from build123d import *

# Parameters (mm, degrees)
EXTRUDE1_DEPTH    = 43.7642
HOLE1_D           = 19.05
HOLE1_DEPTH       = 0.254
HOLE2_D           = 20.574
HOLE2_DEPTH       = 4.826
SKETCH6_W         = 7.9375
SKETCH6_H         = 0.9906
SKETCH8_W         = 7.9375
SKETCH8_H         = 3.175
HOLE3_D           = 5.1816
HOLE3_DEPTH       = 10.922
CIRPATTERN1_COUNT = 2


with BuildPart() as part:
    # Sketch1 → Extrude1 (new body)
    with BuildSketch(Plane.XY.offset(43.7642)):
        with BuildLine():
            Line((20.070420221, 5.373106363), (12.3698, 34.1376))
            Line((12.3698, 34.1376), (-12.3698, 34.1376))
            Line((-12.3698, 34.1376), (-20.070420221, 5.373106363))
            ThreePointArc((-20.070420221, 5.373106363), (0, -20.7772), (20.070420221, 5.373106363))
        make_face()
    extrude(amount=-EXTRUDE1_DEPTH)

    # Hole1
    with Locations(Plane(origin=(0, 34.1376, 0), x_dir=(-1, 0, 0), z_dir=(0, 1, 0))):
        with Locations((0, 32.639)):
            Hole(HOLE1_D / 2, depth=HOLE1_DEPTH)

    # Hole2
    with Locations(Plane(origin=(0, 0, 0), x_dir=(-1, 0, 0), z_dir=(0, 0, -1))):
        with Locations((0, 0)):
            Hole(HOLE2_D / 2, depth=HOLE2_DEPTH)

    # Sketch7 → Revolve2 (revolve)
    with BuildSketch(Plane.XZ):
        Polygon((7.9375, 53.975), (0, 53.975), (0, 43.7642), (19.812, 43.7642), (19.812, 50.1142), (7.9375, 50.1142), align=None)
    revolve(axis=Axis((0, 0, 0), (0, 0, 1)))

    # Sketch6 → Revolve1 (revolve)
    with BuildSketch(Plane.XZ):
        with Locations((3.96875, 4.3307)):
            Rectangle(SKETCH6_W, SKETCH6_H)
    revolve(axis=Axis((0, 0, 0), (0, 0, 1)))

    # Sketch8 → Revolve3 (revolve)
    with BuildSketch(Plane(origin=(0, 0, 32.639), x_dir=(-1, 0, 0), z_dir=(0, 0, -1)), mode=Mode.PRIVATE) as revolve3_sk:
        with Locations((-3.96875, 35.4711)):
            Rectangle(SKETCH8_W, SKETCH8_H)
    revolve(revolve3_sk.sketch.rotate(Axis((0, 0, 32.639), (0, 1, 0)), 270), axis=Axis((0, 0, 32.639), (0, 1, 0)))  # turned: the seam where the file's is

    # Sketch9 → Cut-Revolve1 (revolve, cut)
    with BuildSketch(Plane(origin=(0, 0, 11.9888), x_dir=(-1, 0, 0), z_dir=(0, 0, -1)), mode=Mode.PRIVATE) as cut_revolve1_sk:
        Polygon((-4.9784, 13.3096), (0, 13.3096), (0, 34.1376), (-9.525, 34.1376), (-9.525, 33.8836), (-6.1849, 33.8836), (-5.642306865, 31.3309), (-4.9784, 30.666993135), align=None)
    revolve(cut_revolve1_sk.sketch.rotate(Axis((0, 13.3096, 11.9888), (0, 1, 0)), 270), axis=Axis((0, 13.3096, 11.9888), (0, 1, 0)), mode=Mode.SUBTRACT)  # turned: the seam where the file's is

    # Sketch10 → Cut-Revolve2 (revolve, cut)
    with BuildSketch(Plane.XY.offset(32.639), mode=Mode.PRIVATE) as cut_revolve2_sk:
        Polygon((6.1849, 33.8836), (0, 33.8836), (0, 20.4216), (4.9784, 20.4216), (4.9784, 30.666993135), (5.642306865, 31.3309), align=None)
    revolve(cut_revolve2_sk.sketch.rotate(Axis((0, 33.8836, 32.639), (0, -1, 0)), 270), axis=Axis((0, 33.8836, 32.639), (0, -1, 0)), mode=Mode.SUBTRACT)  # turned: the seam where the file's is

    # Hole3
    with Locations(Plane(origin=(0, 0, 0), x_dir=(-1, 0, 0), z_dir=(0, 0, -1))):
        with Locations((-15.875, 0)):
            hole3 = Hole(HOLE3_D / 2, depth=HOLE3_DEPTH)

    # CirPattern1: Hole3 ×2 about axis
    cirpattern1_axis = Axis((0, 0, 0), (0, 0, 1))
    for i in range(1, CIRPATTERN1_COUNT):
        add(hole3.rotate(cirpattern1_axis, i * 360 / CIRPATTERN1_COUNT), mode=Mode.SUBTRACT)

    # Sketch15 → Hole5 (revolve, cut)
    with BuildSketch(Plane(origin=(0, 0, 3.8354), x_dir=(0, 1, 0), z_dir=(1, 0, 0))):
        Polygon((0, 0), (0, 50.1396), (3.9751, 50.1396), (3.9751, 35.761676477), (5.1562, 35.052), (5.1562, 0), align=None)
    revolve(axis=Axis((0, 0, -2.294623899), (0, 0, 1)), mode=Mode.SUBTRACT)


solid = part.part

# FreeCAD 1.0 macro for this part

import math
import FreeCAD as App
import Part
import Sketcher
Q = App.Units.Quantity

doc = App.newDocument("Part")
body = doc.addObject("PartDesign::Body", "Body")

# Sketch on XY plane
sketch1 = body.newObject("Sketcher::SketchObject", "Sketch")
sketch1.AttachmentSupport = (doc.getObject("XY_Plane"), [""])
sketch1.MapMode = "FlatFace"
sketch1.AttachmentOffset = App.Placement(App.Vector(0, 0, 1.723 * 25.4), App.Rotation())
sketch1.addGeometry([
    Part.LineSegment(App.Vector(20, 5, 0), App.Vector(12, 34, 0)),
    Part.LineSegment(App.Vector(12, 34, 0), App.Vector(-12, 34, 0)),
    Part.LineSegment(App.Vector(-12, 34, 0), App.Vector(-20, 5, 0)),
    Part.ArcOfCircle(Part.Circle(App.Vector(0, 0, 0), App.Vector(0, 0, 1), 21), math.radians(165), math.radians(375)),
], False)
sketch1.addConstraint([
    Sketcher.Constraint("Coincident", 0, 2, 1, 1),
    Sketcher.Constraint("Coincident", 1, 2, 2, 1),
    Sketcher.Constraint("Tangent", 2, 2, 3, 1),
    Sketcher.Constraint("Tangent", 3, 2, 0, 1),
    Sketcher.Constraint("Horizontal", 1),
    Sketcher.Constraint("Coincident", 3, 3, -1, 1),
    Sketcher.Constraint("Horizontal", 2, 2, 3, 2),
    Sketcher.Constraint("Radius", 3, Q("0.818 in")),
    Sketcher.Constraint("DistanceX", 1, 2, 1, 1, Q("0.974 in")),
    Sketcher.Constraint("DistanceY", -1, 1, 0, 2, Q("1.344 in")),
])
pad1 = body.newObject("PartDesign::Pad", "Pad")
pad1.Profile = sketch1
pad1.Length = Q("1.723 in")
pad1.Reversed = True

# Sketch on XZ plane
sketch2 = body.newObject("Sketcher::SketchObject", "Sketch001")
sketch2.AttachmentSupport = (doc.getObject("XZ_Plane"), [""])
sketch2.MapMode = "FlatFace"
sketch2.AttachmentOffset = App.Placement(App.Vector(0, 0, -1.344 * 25.4), App.Rotation())
sketch2.addGeometry(Part.Circle(App.Vector(0, 33, 0), App.Vector(0, 0, 1), 10), False)
sketch2.addConstraint([
    Sketcher.Constraint("PointOnObject", 0, 3, -2),
    Sketcher.Constraint("Diameter", 0, Q("0.75 in")),
    Sketcher.Constraint("DistanceY", -1, 1, 0, 3, Q("1.285 in")),
])
doc.recompute()
hole = body.newObject("PartDesign::Hole", "Hole")
hole.Profile = sketch2
hole.ThreadType = "None"
hole.Diameter = Q("0.75 in")
hole.DepthType = "Dimension"
hole.Depth = Q("0.01 in")
hole.DrillPoint = "Flat"
hole.Reversed = True

# Sketch on XY plane
sketch3 = body.newObject("Sketcher::SketchObject", "Sketch002")
sketch3.AttachmentSupport = (doc.getObject("XY_Plane"), [""])
sketch3.MapMode = "FlatFace"
sketch3.addGeometry(Part.Circle(App.Vector(0, 0, 0), App.Vector(0, 0, 1), 10), False)
sketch3.addConstraint([
    Sketcher.Constraint("Coincident", 0, 3, -1, 1),
    Sketcher.Constraint("Diameter", 0, Q("0.81 in")),
])
doc.recompute()
hole2 = body.newObject("PartDesign::Hole", "Hole001")
hole2.Profile = sketch3
hole2.ThreadType = "None"
hole2.Diameter = Q("0.81 in")
hole2.DepthType = "Dimension"
hole2.Depth = Q("0.19 in")
hole2.DrillPoint = "Flat"
hole2.Reversed = True

# Sketch on XZ plane
sketch4 = body.newObject("Sketcher::SketchObject", "Sketch003")
sketch4.AttachmentSupport = (doc.getObject("XZ_Plane"), [""])
sketch4.MapMode = "FlatFace"
sketch4.addGeometry([
    Part.LineSegment(App.Vector(7.9, 54, 0), App.Vector(0, 54, 0)),  # 0
    Part.LineSegment(App.Vector(0, 54, 0), App.Vector(0, 43.8, 0)),  # 1
    Part.LineSegment(App.Vector(0, 43.8, 0), App.Vector(19.8, 43.8, 0)),  # 2
    Part.LineSegment(App.Vector(19.8, 43.8, 0), App.Vector(19.8, 50.1, 0)),  # 3
    Part.LineSegment(App.Vector(19.8, 50.1, 0), App.Vector(7.9, 50.1, 0)),  # 4
    Part.LineSegment(App.Vector(7.9, 50.1, 0), App.Vector(7.9, 54, 0)),  # 5
], False)
sketch4.addConstraint([
    Sketcher.Constraint("Coincident", 0, 2, 1, 1),
    Sketcher.Constraint("Coincident", 1, 2, 2, 1),
    Sketcher.Constraint("Coincident", 2, 2, 3, 1),
    Sketcher.Constraint("Coincident", 3, 2, 4, 1),
    Sketcher.Constraint("Coincident", 4, 2, 5, 1),
    Sketcher.Constraint("Coincident", 5, 2, 0, 1),
    Sketcher.Constraint("Horizontal", 0),
    Sketcher.Constraint("Vertical", 1),
    Sketcher.Constraint("Horizontal", 2),
    Sketcher.Constraint("Vertical", 3),
    Sketcher.Constraint("Horizontal", 4),
    Sketcher.Constraint("Vertical", 5),
    Sketcher.Constraint("PointOnObject", 0, 2, -2),
    Sketcher.Constraint("DistanceX", 2, 1, 2, 2, Q("0.78 in")),
    Sketcher.Constraint("DistanceY", 3, 1, 3, 2, Q("0.25 in")),
    Sketcher.Constraint("DistanceX", 0, 2, 0, 1, Q("0.3125 in")),
    Sketcher.Constraint("DistanceY", 1, 2, 1, 1, Q("0.402 in")),
    Sketcher.Constraint("DistanceY", -1, 1, 0, 2, Q("2.125 in")),
])
revolution = body.newObject("PartDesign::Revolution", "Revolution")
revolution.Profile = sketch4
revolution.ReferenceAxis = (sketch4, ["V_Axis"])
revolution.Angle = 360

# Sketch on XZ plane
sketch5 = body.newObject("Sketcher::SketchObject", "Sketch004")
sketch5.AttachmentSupport = (doc.getObject("XZ_Plane"), [""])
sketch5.MapMode = "FlatFace"
sketch5.addGeometry([
    Part.LineSegment(App.Vector(0, 4.8, 0), App.Vector(0, 3.8, 0)),
    Part.LineSegment(App.Vector(0, 3.8, 0), App.Vector(7.9, 3.8, 0)),
    Part.LineSegment(App.Vector(7.9, 3.8, 0), App.Vector(7.9, 4.8, 0)),
    Part.LineSegment(App.Vector(7.9, 4.8, 0), App.Vector(0, 4.8, 0)),
], False)
sketch5.addConstraint([
    Sketcher.Constraint("Coincident", 0, 2, 1, 1),
    Sketcher.Constraint("Coincident", 1, 2, 2, 1),
    Sketcher.Constraint("Coincident", 2, 2, 3, 1),
    Sketcher.Constraint("Coincident", 3, 2, 0, 1),
    Sketcher.Constraint("Vertical", 0),
    Sketcher.Constraint("Horizontal", 1),
    Sketcher.Constraint("Vertical", 2),
    Sketcher.Constraint("Horizontal", 3),
    Sketcher.Constraint("PointOnObject", 0, 2, -2),
    Sketcher.Constraint("DistanceX", 1, 1, 1, 2, Q("0.3125 in")),
    Sketcher.Constraint("DistanceY", 0, 2, 0, 1, Q("0.039 in")),
    Sketcher.Constraint("DistanceY", -1, 1, 2, 2, Q("0.19 in")),
])
revolution2 = body.newObject("PartDesign::Revolution", "Revolution001")
revolution2.Profile = sketch5
revolution2.ReferenceAxis = (sketch5, ["V_Axis"])
revolution2.Angle = 360

# Sketch on XY plane
sketch6 = body.newObject("Sketcher::SketchObject", "Sketch005")
sketch6.AttachmentSupport = (doc.getObject("XY_Plane"), [""])
sketch6.MapMode = "FlatFace"
sketch6.AttachmentOffset = App.Placement(App.Vector(0, 0, 1.285 * 25.4), App.Rotation())
sketch6.addGeometry([
    Part.LineSegment(App.Vector(7.9, 37.1, 0), App.Vector(7.9, 33.9, 0)),
    Part.LineSegment(App.Vector(7.9, 33.9, 0), App.Vector(0, 33.9, 0)),
    Part.LineSegment(App.Vector(0, 33.9, 0), App.Vector(0, 37.1, 0)),
    Part.LineSegment(App.Vector(0, 37.1, 0), App.Vector(7.9, 37.1, 0)),
], False)
sketch6.addConstraint([
    Sketcher.Constraint("Coincident", 0, 2, 1, 1),
    Sketcher.Constraint("Coincident", 1, 2, 2, 1),
    Sketcher.Constraint("Coincident", 2, 2, 3, 1),
    Sketcher.Constraint("Coincident", 3, 2, 0, 1),
    Sketcher.Constraint("Vertical", 0),
    Sketcher.Constraint("Horizontal", 1),
    Sketcher.Constraint("Vertical", 2),
    Sketcher.Constraint("Horizontal", 3),
    Sketcher.Constraint("PointOnObject", 1, 2, -2),
    Sketcher.Constraint("DistanceX", 1, 2, 1, 1, Q("0.3125 in")),
    Sketcher.Constraint("DistanceY", 0, 2, 0, 1, Q("0.125 in")),
    Sketcher.Constraint("DistanceY", -1, 1, 0, 2, Q("1.334 in")),
])
revolution3 = body.newObject("PartDesign::Revolution", "Revolution002")
revolution3.Profile = sketch6
revolution3.ReferenceAxis = (sketch6, ["V_Axis"])
revolution3.Angle = 360

# Sketch on XY plane
sketch7 = body.newObject("Sketcher::SketchObject", "Sketch006")
sketch7.AttachmentSupport = (doc.getObject("XY_Plane"), [""])
sketch7.MapMode = "FlatFace"
sketch7.AttachmentOffset = App.Placement(App.Vector(0, 0, 0.472 * 25.4), App.Rotation())
sketch7.addGeometry([
    Part.LineSegment(App.Vector(4.98, 13.31, 0), App.Vector(0, 13.31, 0)),  # 0
    Part.LineSegment(App.Vector(0, 13.31, 0), App.Vector(0, 34.14, 0)),  # 1
    Part.LineSegment(App.Vector(0, 34.14, 0), App.Vector(9.53, 34.14, 0)),  # 2
    Part.LineSegment(App.Vector(9.53, 34.14, 0), App.Vector(9.53, 33.88, 0)),  # 3
    Part.LineSegment(App.Vector(9.53, 33.88, 0), App.Vector(6.18, 33.88, 0)),  # 4
    Part.LineSegment(App.Vector(6.18, 33.88, 0), App.Vector(5.64, 31.33, 0)),  # 5
    Part.LineSegment(App.Vector(5.64, 31.33, 0), App.Vector(4.98, 30.67, 0)),  # 6
    Part.LineSegment(App.Vector(4.98, 30.67, 0), App.Vector(4.98, 13.31, 0)),  # 7
], False)
sketch7.addConstraint([
    Sketcher.Constraint("Coincident", 0, 2, 1, 1),
    Sketcher.Constraint("Coincident", 1, 2, 2, 1),
    Sketcher.Constraint("Coincident", 2, 2, 3, 1),
    Sketcher.Constraint("Coincident", 3, 2, 4, 1),
    Sketcher.Constraint("Coincident", 4, 2, 5, 1),
    Sketcher.Constraint("Coincident", 5, 2, 6, 1),
    Sketcher.Constraint("Coincident", 6, 2, 7, 1),
    Sketcher.Constraint("Coincident", 7, 2, 0, 1),
    Sketcher.Constraint("Horizontal", 0),
    Sketcher.Constraint("Vertical", 1),
    Sketcher.Constraint("Horizontal", 2),
    Sketcher.Constraint("Vertical", 3),
    Sketcher.Constraint("Horizontal", 4),
    Sketcher.Constraint("Vertical", 7),
    Sketcher.Constraint("PointOnObject", 0, 2, -2),
    Sketcher.Constraint("Angle", 5, Q("-102 deg")),
    Sketcher.Constraint("Angle", 6, Q("-135 deg")),
    Sketcher.Constraint("DistanceY", 1, 1, 1, 2, Q("0.82 in")),
    Sketcher.Constraint("DistanceY", 3, 2, 3, 1, Q("0.01 in")),
    Sketcher.Constraint("DistanceX", 0, 2, 0, 1, Q("0.196 in")),
    Sketcher.Constraint("DistanceX", 2, 1, 2, 2, Q("0.375 in")),
    Sketcher.Constraint("DistanceX", 4, 2, 4, 1, Q("0.1315 in")),
    Sketcher.Constraint("DistanceY", -1, 1, 0, 2, Q("0.524 in")),
    Sketcher.Constraint("DistanceY", -1, 1, 5, 2, Q("1.2335 in")),
])
groove = body.newObject("PartDesign::Groove", "Groove")
groove.Profile = sketch7
groove.ReferenceAxis = (sketch7, ["V_Axis"])
groove.Angle = 360

# Sketch on XY plane
sketch8 = body.newObject("Sketcher::SketchObject", "Sketch007")
sketch8.AttachmentSupport = (doc.getObject("XY_Plane"), [""])
sketch8.MapMode = "FlatFace"
sketch8.AttachmentOffset = App.Placement(App.Vector(0, 0, 1.285 * 25.4), App.Rotation())
sketch8.addGeometry([
    Part.LineSegment(App.Vector(6.2, 33.9, 0), App.Vector(0, 33.9, 0)),  # 0
    Part.LineSegment(App.Vector(0, 33.9, 0), App.Vector(0, 20.4, 0)),  # 1
    Part.LineSegment(App.Vector(0, 20.4, 0), App.Vector(5, 20.4, 0)),  # 2
    Part.LineSegment(App.Vector(5, 20.4, 0), App.Vector(5, 30.7, 0)),  # 3
    Part.LineSegment(App.Vector(5, 30.7, 0), App.Vector(5.6, 31.3, 0)),  # 4
    Part.LineSegment(App.Vector(5.6, 31.3, 0), App.Vector(6.2, 33.9, 0)),  # 5
], False)
sketch8.addConstraint([
    Sketcher.Constraint("Coincident", 0, 2, 1, 1),
    Sketcher.Constraint("Coincident", 1, 2, 2, 1),
    Sketcher.Constraint("Coincident", 2, 2, 3, 1),
    Sketcher.Constraint("Coincident", 3, 2, 4, 1),
    Sketcher.Constraint("Coincident", 4, 2, 5, 1),
    Sketcher.Constraint("Coincident", 5, 2, 0, 1),
    Sketcher.Constraint("Horizontal", 0),
    Sketcher.Constraint("Vertical", 1),
    Sketcher.Constraint("Horizontal", 2),
    Sketcher.Constraint("Vertical", 3),
    Sketcher.Constraint("PointOnObject", 0, 2, -2),
    Sketcher.Constraint("Angle", 4, Q("45 deg")),
    Sketcher.Constraint("Angle", 5, Q("78 deg")),
    Sketcher.Constraint("DistanceY", 1, 2, 1, 1, Q("0.53 in")),
    Sketcher.Constraint("DistanceX", 2, 1, 2, 2, Q("0.196 in")),
    Sketcher.Constraint("DistanceX", 0, 2, 0, 1, Q("0.2435 in")),
    Sketcher.Constraint("DistanceY", -1, 1, 0, 2, Q("1.334 in")),
    Sketcher.Constraint("DistanceY", -1, 1, 4, 2, Q("1.2335 in")),
])
groove2 = body.newObject("PartDesign::Groove", "Groove001")
groove2.Profile = sketch8
groove2.ReferenceAxis = (sketch8, ["V_Axis"])
groove2.Angle = 360

# Sketch on XY plane
sketch9 = body.newObject("Sketcher::SketchObject", "Sketch008")
sketch9.AttachmentSupport = (doc.getObject("XY_Plane"), [""])
sketch9.MapMode = "FlatFace"
sketch9.addGeometry(Part.Circle(App.Vector(15.9, 0, 0), App.Vector(0, 0, 1), 2.6), False)
sketch9.addConstraint([
    Sketcher.Constraint("PointOnObject", 0, 3, -1),
    Sketcher.Constraint("Diameter", 0, Q("0.204 in")),
    Sketcher.Constraint("DistanceX", -1, 1, 0, 3, Q("0.625 in")),
])
doc.recompute()
hole3 = body.newObject("PartDesign::Hole", "Hole002")
hole3.Profile = sketch9
hole3.ThreadType = "None"
hole3.Diameter = Q("0.204 in")
hole3.DepthType = "Dimension"
hole3.Depth = Q("0.43 in")
hole3.DrillPoint = "Flat"
hole3.Reversed = True
doc.recompute()

polarpattern = body.newObject("PartDesign::PolarPattern", "PolarPattern")
polarpattern.Originals = [hole3]
polarpattern.Axis = (doc.getObject("Z_Axis"), [""])
polarpattern.Angle = 360
polarpattern.Occurrences = 2
body.Tip = polarpattern

# Sketch on YZ plane
sketch10 = body.newObject("Sketcher::SketchObject", "Sketch009")
sketch10.AttachmentSupport = (doc.getObject("YZ_Plane"), [""])
sketch10.MapMode = "FlatFace"
sketch10.addGeometry([
    Part.LineSegment(App.Vector(0, 54, 0), App.Vector(0, 3.8, 0)),  # 0
    Part.LineSegment(App.Vector(0, 3.8, 0), App.Vector(5.2, 3.8, 0)),  # 1
    Part.LineSegment(App.Vector(5.2, 3.8, 0), App.Vector(5.2, 38.9, 0)),  # 2
    Part.LineSegment(App.Vector(5.2, 38.9, 0), App.Vector(4, 39.6, 0)),  # 3
    Part.LineSegment(App.Vector(4, 39.6, 0), App.Vector(4, 54, 0)),  # 4
    Part.LineSegment(App.Vector(4, 54, 0), App.Vector(0, 54, 0)),  # 5
], False)
sketch10.addConstraint([
    Sketcher.Constraint("Coincident", 0, 2, 1, 1),
    Sketcher.Constraint("Coincident", 1, 2, 2, 1),
    Sketcher.Constraint("Coincident", 2, 2, 3, 1),
    Sketcher.Constraint("Coincident", 3, 2, 4, 1),
    Sketcher.Constraint("Coincident", 4, 2, 5, 1),
    Sketcher.Constraint("Coincident", 5, 2, 0, 1),
    Sketcher.Constraint("Vertical", 0),
    Sketcher.Constraint("Horizontal", 1),
    Sketcher.Constraint("Vertical", 2),
    Sketcher.Constraint("Vertical", 4),
    Sketcher.Constraint("Horizontal", 5),
    Sketcher.Constraint("PointOnObject", 0, 2, -2),
    Sketcher.Constraint("Angle", 3, Q("149 deg")),
    Sketcher.Constraint("DistanceY", 2, 1, 2, 2, Q("1.38 in")),
    Sketcher.Constraint("DistanceX", 1, 1, 1, 2, Q("0.203 in")),
    Sketcher.Constraint("DistanceY", 0, 2, 0, 1, Q("1.974 in")),
    Sketcher.Constraint("DistanceX", 5, 2, 5, 1, Q("0.1565 in")),
    Sketcher.Constraint("DistanceY", -1, 1, 0, 2, Q("0.151 in")),
])
groove3 = body.newObject("PartDesign::Groove", "Groove002")
groove3.Profile = sketch10
groove3.ReferenceAxis = (sketch10, ["V_Axis"])
groove3.Angle = 360

doc.recompute()
